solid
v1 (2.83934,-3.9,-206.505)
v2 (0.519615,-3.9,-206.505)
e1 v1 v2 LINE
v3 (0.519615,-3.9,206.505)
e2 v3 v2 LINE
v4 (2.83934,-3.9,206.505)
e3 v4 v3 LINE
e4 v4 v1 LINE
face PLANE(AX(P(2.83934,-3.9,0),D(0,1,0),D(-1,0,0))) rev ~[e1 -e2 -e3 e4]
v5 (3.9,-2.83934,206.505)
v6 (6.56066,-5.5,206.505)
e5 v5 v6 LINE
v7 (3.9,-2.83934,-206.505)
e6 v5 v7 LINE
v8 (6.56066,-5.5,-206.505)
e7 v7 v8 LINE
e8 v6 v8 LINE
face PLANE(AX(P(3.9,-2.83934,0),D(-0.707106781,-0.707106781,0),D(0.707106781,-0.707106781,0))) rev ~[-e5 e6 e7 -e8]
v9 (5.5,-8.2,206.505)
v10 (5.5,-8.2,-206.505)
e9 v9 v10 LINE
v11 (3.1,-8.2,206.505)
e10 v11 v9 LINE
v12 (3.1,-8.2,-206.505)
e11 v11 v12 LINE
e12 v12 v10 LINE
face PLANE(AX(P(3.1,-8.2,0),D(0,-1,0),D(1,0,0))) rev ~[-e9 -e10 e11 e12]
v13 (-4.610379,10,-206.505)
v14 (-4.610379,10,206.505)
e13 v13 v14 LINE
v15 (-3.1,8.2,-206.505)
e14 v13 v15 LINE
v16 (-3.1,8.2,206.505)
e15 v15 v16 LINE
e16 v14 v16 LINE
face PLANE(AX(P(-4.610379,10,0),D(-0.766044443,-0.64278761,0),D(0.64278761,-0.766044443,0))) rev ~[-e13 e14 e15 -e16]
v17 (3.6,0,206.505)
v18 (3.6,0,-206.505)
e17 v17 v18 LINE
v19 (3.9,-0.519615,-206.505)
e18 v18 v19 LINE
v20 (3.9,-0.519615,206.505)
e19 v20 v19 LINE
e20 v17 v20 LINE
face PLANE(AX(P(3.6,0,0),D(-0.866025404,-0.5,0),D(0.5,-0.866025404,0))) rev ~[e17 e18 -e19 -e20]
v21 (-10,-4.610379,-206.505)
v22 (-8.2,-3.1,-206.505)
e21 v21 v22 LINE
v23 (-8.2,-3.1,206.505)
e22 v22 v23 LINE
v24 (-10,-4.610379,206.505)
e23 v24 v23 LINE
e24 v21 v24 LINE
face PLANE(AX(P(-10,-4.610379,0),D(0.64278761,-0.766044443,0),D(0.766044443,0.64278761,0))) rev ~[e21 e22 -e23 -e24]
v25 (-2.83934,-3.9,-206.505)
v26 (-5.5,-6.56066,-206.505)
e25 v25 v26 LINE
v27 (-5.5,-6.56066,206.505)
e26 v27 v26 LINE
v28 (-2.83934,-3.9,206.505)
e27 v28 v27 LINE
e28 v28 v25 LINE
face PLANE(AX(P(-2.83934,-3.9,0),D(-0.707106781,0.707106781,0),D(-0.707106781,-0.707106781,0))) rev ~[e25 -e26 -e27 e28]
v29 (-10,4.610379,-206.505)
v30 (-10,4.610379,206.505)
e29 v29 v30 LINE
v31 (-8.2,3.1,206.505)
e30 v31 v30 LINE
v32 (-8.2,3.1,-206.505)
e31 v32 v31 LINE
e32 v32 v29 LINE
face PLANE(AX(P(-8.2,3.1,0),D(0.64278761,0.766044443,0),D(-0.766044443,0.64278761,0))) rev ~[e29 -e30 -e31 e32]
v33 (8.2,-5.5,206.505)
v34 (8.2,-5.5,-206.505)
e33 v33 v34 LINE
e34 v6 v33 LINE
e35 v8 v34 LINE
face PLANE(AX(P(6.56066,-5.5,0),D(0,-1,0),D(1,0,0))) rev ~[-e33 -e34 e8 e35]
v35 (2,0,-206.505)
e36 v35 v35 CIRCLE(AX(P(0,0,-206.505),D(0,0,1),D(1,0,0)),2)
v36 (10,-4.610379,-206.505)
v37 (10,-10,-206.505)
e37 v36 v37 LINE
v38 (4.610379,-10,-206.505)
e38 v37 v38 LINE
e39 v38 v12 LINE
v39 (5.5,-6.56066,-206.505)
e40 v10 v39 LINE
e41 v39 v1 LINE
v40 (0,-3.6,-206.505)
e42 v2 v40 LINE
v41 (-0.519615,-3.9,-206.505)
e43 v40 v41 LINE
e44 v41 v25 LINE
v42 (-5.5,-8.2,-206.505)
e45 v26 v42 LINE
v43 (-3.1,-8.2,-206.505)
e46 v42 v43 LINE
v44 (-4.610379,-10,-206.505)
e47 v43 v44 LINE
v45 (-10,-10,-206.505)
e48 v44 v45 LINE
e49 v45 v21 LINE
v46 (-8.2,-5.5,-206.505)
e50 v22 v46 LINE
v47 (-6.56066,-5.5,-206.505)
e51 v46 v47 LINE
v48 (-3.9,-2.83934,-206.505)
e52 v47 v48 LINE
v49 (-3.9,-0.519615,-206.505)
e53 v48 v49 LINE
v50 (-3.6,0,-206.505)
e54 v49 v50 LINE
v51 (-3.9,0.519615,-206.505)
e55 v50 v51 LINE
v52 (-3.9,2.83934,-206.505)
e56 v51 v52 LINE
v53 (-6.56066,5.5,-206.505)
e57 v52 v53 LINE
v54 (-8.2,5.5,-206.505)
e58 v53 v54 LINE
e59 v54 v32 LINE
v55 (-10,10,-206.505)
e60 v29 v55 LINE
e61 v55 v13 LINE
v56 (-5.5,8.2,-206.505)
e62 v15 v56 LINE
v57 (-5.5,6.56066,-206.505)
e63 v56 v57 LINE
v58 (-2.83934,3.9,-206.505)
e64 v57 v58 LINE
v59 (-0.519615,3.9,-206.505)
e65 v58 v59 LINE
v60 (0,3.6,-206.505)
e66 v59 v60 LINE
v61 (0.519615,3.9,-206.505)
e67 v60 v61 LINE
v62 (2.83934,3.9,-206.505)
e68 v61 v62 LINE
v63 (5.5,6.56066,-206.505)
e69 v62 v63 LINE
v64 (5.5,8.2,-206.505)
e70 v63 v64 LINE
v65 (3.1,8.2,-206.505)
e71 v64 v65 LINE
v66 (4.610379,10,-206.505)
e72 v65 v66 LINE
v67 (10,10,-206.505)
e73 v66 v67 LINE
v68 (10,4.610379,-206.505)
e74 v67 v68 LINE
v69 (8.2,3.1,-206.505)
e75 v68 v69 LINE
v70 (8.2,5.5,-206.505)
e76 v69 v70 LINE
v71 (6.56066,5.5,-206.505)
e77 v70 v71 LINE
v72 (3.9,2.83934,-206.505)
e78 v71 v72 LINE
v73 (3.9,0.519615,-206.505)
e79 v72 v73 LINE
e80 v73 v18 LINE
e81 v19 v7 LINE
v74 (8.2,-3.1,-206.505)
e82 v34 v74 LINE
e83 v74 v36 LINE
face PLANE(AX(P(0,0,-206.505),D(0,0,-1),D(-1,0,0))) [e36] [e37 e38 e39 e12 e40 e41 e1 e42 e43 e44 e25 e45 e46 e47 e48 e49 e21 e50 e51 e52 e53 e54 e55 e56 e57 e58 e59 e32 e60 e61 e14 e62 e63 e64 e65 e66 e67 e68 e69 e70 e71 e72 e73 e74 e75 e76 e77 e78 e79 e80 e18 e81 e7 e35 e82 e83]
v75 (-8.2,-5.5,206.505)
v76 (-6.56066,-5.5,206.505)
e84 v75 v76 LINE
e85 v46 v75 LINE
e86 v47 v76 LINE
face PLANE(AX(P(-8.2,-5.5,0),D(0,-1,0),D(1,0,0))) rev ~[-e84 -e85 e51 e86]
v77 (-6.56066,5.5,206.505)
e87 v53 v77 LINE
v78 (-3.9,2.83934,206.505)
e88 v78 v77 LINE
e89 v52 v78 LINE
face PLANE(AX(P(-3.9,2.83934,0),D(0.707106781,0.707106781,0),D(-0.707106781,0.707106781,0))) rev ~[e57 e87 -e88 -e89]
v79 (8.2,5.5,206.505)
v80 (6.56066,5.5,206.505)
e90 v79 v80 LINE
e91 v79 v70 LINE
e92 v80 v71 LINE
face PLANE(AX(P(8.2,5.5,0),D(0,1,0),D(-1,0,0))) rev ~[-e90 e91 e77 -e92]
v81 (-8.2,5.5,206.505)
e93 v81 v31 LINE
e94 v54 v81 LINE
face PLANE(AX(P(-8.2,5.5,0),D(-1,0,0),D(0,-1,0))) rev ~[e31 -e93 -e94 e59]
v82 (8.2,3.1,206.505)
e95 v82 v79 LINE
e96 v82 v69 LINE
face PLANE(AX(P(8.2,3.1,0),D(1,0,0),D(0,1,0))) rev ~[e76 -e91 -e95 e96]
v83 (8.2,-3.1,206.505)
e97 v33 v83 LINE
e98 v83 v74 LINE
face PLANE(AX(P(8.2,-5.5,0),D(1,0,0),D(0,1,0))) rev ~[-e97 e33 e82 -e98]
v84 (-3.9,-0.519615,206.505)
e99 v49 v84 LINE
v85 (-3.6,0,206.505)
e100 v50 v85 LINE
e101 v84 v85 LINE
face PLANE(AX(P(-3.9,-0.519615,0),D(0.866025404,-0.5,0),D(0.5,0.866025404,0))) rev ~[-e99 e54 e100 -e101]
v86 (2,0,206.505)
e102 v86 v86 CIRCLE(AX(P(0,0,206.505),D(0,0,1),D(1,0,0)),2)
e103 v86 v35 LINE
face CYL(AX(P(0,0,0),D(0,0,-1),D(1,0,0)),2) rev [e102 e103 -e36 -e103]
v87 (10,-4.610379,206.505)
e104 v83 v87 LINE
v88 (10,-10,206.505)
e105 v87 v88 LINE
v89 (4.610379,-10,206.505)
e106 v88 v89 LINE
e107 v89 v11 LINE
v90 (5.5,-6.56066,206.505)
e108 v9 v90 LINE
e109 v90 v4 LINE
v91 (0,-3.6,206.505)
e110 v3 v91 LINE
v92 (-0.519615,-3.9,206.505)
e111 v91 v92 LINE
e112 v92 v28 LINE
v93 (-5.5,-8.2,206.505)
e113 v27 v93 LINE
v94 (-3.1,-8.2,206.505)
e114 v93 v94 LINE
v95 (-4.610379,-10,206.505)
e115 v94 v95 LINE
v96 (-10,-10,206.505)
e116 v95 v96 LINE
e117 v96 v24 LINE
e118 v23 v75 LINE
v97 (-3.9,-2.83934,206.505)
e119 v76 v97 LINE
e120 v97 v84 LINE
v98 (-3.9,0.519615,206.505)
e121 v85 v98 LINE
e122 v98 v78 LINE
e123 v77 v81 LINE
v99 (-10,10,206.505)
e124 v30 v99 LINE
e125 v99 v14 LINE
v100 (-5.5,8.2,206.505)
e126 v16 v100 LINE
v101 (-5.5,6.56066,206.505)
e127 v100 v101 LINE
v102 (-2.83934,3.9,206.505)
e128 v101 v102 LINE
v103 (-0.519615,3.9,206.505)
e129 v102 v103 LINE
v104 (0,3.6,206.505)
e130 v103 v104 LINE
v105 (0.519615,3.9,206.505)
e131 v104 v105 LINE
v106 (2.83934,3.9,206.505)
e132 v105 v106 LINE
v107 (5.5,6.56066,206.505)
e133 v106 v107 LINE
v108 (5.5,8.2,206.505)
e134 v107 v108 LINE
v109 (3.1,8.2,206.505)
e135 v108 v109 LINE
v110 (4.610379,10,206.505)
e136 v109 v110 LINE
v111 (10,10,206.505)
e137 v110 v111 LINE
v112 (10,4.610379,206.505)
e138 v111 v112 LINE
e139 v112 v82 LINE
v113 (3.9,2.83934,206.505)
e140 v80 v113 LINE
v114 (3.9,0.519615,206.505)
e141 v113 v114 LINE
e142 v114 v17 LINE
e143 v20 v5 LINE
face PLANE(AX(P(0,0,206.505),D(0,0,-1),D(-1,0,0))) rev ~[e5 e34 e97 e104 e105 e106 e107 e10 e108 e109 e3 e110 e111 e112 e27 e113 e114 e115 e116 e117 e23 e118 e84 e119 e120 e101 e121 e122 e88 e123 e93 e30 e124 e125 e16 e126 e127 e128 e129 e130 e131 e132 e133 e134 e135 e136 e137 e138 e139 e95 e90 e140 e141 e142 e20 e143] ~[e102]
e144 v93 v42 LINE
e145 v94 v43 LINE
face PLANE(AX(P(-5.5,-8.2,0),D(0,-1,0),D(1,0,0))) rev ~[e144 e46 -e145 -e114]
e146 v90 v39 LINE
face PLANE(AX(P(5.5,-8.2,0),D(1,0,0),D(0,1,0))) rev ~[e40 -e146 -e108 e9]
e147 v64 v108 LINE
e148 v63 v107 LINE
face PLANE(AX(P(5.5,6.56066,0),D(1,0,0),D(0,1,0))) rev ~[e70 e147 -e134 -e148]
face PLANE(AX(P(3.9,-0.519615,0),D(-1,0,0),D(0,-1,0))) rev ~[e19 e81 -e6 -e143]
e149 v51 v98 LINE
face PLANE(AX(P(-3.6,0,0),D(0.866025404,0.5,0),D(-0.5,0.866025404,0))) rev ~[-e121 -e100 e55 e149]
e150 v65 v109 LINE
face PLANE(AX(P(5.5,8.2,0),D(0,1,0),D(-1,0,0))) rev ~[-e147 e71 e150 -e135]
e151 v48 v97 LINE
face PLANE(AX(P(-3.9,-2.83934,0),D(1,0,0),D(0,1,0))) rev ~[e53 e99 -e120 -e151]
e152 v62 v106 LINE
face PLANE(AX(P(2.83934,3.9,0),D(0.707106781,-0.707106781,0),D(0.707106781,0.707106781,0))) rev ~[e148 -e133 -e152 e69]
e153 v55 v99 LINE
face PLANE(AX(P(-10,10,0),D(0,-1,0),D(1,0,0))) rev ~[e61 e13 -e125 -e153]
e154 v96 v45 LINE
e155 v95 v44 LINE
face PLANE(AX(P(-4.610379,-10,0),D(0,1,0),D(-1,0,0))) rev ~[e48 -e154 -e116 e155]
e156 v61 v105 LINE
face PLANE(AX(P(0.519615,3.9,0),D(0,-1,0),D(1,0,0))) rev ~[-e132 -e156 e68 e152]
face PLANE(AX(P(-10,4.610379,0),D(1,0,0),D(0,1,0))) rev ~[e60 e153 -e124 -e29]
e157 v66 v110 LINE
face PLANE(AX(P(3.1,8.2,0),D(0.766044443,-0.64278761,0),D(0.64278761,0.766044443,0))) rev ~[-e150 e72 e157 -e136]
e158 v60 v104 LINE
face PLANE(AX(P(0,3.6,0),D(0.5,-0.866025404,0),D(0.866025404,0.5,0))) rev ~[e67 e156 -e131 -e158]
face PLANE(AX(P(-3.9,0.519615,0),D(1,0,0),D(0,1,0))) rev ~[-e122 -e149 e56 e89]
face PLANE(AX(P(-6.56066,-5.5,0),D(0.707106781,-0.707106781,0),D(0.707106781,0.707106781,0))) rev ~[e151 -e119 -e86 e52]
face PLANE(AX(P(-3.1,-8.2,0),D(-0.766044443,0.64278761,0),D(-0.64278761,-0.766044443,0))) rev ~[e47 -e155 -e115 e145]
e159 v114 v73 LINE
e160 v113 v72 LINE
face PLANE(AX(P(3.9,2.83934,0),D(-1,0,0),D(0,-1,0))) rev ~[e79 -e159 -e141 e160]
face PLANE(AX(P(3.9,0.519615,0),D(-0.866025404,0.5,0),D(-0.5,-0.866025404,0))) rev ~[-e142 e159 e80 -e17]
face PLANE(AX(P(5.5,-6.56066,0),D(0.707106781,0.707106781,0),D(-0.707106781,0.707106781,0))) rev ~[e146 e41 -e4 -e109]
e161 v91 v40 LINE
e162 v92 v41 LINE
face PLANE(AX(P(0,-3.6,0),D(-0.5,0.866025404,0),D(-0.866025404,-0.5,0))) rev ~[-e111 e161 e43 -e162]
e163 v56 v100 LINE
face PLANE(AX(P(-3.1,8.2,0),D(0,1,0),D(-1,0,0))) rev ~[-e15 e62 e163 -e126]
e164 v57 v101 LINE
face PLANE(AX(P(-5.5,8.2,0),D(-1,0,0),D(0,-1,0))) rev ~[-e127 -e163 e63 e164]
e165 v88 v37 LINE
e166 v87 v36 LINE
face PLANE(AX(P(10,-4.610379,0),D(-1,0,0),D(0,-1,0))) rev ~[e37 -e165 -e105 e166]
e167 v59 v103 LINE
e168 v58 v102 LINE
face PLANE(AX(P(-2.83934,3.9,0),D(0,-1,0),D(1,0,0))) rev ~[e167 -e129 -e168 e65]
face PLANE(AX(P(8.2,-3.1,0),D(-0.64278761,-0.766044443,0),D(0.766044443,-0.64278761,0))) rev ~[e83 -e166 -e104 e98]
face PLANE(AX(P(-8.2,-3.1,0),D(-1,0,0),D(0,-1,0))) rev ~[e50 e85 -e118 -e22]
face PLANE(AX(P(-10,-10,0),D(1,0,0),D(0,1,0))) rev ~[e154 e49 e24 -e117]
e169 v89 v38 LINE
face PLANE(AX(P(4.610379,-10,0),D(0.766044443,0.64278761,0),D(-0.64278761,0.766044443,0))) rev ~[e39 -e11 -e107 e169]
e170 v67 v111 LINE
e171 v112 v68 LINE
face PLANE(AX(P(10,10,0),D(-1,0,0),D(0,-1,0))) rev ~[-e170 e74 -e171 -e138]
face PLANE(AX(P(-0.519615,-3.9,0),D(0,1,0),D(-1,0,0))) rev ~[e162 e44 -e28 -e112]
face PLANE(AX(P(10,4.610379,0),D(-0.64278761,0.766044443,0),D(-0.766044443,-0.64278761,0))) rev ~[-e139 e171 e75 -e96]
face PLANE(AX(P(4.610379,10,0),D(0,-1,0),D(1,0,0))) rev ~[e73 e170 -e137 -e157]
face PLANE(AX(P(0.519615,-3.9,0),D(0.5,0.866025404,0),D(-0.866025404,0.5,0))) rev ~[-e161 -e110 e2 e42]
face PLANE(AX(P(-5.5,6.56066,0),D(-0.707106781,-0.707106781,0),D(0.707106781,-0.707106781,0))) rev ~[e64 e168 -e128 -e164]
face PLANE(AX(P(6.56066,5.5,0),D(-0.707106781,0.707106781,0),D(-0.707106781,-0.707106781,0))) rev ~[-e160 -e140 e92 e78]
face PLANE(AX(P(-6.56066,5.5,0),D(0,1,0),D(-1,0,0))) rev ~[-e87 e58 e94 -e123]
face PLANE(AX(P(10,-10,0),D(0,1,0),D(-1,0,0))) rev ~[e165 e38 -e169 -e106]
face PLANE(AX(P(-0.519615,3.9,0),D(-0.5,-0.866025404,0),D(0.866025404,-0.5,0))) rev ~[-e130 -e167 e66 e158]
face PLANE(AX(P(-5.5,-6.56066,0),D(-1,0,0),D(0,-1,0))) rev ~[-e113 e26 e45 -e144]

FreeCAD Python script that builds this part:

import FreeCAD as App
import Part
import Sketcher
Q = App.Units.Quantity


def add_polygon(sketch, points):
    """Adds a closed chain of lines whose ends are joined by coincident constraints."""
    first, n = sketch.GeometryCount, len(points)
    for a, b in zip(points, points[1:] + points[:1]):
        sketch.addGeometry(Part.LineSegment(App.Vector(*a, 0), App.Vector(*b, 0)), False)
    for i in range(n):
        sketch.addConstraint(Sketcher.Constraint("Coincident", first + i, 2, first + (i + 1) % n, 1))

doc = App.newDocument("Part")
params = doc.addObject("Spreadsheet::Sheet", "Params")
for row, (alias, value) in enumerate([
    ("sketch1_diameter", "4 mm"),
    ("sketch1_width", "2.4 mm"),
    ("sketch1_length", "0.6 mm"),
    ("pad1_length", "413.01 mm"),
], start=1):
    params.set(f"A{row}", alias)
    params.set(f"B{row}", "=" + value)
    params.setAlias(f"B{row}", alias)

body = doc.addObject("PartDesign::Body", "Body")

sketch1 = doc.addObject("Sketcher::SketchObject", "Sketch")
body.addObject(sketch1)
sketch1.AttachmentSupport = (doc.XY_Plane, [""])
sketch1.MapMode = "FlatFace"
add_polygon(sketch1, [(10, 4.6), (10, 10), (4.6, 10), (3.1, 8.2), (5.5, 8.2), (5.5, 6.6), (2.8, 3.9), (0.5, 3.9), (0, 3.6), (-0.5, 3.9), (-2.8, 3.9), (-5.5, 6.6), (-5.5, 8.2), (-3.1, 8.2), (-4.6, 10), (-10, 10), (-10, 4.6), (-8.2, 3.1), (-8.2, 5.5), (-6.6, 5.5), (-3.9, 2.8), (-3.9, 0.5), (-3.6, 0), (-3.9, -0.5), (-3.9, -2.8), (-6.6, -5.5), (-8.2, -5.5), (-8.2, -3.1), (-10, -4.6), (-10, -10), (-4.6, -10), (-3.1, -8.2), (-5.5, -8.2), (-5.5, -6.6), (-2.8, -3.9), (-0.5, -3.9), (0, -3.6), (0.5, -3.9), (2.8, -3.9), (5.5, -6.6), (5.5, -8.2), (3.1, -8.2), (4.6, -10), (10, -10), (10, -4.6), (8.2, -3.1), (8.2, -5.5), (6.6, -5.5), (3.9, -2.8), (3.9, -0.5), (3.6, 0), (3.9, 0.5), (3.9, 2.8), (6.6, 5.5), (8.2, 5.5), (8.2, 3.1)])
sketch1.addGeometry(Part.Circle(App.Vector(0, 0, 0), App.Vector(0, 0, 1), 2), False)
sketch1.addConstraint(Sketcher.Constraint("Vertical", 0))
sketch1.addConstraint(Sketcher.Constraint("Horizontal", 1))
sketch1.addConstraint(Sketcher.Constraint("Horizontal", 3))
sketch1.addConstraint(Sketcher.Constraint("Vertical", 4))
sketch1.addConstraint(Sketcher.Constraint("Horizontal", 6))
sketch1.addConstraint(Sketcher.Constraint("Horizontal", 9))
sketch1.addConstraint(Sketcher.Constraint("Vertical", 11))
sketch1.addConstraint(Sketcher.Constraint("Horizontal", 12))
sketch1.addConstraint(Sketcher.Constraint("Horizontal", 14))
sketch1.addConstraint(Sketcher.Constraint("Vertical", 15))
sketch1.addConstraint(Sketcher.Constraint("Vertical", 17))
sketch1.addConstraint(Sketcher.Constraint("Horizontal", 18))
sketch1.addConstraint(Sketcher.Constraint("Vertical", 20))
sketch1.addConstraint(Sketcher.Constraint("Vertical", 23))
sketch1.addConstraint(Sketcher.Constraint("Horizontal", 25))
sketch1.addConstraint(Sketcher.Constraint("Vertical", 26))
sketch1.addConstraint(Sketcher.Constraint("Vertical", 28))
sketch1.addConstraint(Sketcher.Constraint("Horizontal", 29))
sketch1.addConstraint(Sketcher.Constraint("Horizontal", 31))
sketch1.addConstraint(Sketcher.Constraint("Vertical", 32))
sketch1.addConstraint(Sketcher.Constraint("Horizontal", 34))
sketch1.addConstraint(Sketcher.Constraint("Horizontal", 37))
sketch1.addConstraint(Sketcher.Constraint("Vertical", 39))
sketch1.addConstraint(Sketcher.Constraint("Horizontal", 40))
sketch1.addConstraint(Sketcher.Constraint("Horizontal", 42))
sketch1.addConstraint(Sketcher.Constraint("Vertical", 43))
sketch1.addConstraint(Sketcher.Constraint("Vertical", 45))
sketch1.addConstraint(Sketcher.Constraint("Horizontal", 46))
sketch1.addConstraint(Sketcher.Constraint("Vertical", 48))
sketch1.addConstraint(Sketcher.Constraint("Vertical", 51))
sketch1.addConstraint(Sketcher.Constraint("Horizontal", 53))
sketch1.addConstraint(Sketcher.Constraint("Vertical", 54))
sketch1.addConstraint(Sketcher.Constraint("Coincident", 56, 3, -1, 1))
sketch1.addConstraint(Sketcher.Constraint("Symmetric", 0, 2, 28, 2, -1, 1))
sketch1.addConstraint(Sketcher.Constraint("Symmetric", 2, 2, 30, 2, -1, 1))
sketch1.addConstraint(Sketcher.Constraint("Symmetric", 4, 2, 32, 2, -1, 1))
sketch1.addConstraint(Sketcher.Constraint("Symmetric", 5, 2, 33, 2, -1, 1))
sketch1.addConstraint(Sketcher.Constraint("Symmetric", 7, 2, 35, 2, -1, 1))
sketch1.addConstraint(Sketcher.Constraint("Symmetric", 8, 2, 36, 2, -1, 1))
sketch1.addConstraint(Sketcher.Constraint("Symmetric", 10, 2, 38, 2, -1, 1))
sketch1.addConstraint(Sketcher.Constraint("Symmetric", 12, 2, 40, 2, -1, 1))
sketch1.addConstraint(Sketcher.Constraint("Symmetric", 13, 2, 41, 2, -1, 1))
sketch1.addConstraint(Sketcher.Constraint("Symmetric", 15, 2, 43, 2, -1, 1))
sketch1.addConstraint(Sketcher.Constraint("Symmetric", 16, 2, 44, 2, -1, 1))
sketch1.addConstraint(Sketcher.Constraint("Symmetric", 18, 2, 46, 2, -1, 1))
sketch1.addConstraint(Sketcher.Constraint("Symmetric", 19, 2, 47, 2, -1, 1))
sketch1.addConstraint(Sketcher.Constraint("Symmetric", 21, 2, 49, 2, -1, 1))
sketch1.addConstraint(Sketcher.Constraint("Symmetric", 22, 2, 50, 2, -1, 1))
sketch1.addConstraint(Sketcher.Constraint("Symmetric", 24, 2, 52, 2, -1, 1))
sketch1.addConstraint(Sketcher.Constraint("Symmetric", 26, 2, 54, 2, -1, 1))
sketch1.addConstraint(Sketcher.Constraint("Symmetric", 6, 2, 8, 2, -2))
sketch1.addConstraint(Sketcher.Constraint("Symmetric", 4, 2, 10, 2, -2))
sketch1.addConstraint(Sketcher.Constraint("Symmetric", 2, 2, 12, 2, -2))
sketch1.addConstraint(Sketcher.Constraint("Symmetric", 1, 2, 13, 2, -2))
sketch1.addConstraint(Sketcher.Constraint("Symmetric", 27, 2, 43, 2, -2))
sketch1.addConstraint(Sketcher.Constraint("Symmetric", 26, 2, 44, 2, -2))
sketch1.addConstraint(Sketcher.Constraint("Symmetric", 24, 2, 46, 2, -2))
sketch1.addConstraint(Sketcher.Constraint("Symmetric", 23, 2, 47, 2, -2))
sketch1.addConstraint(Sketcher.Constraint("PointOnObject", 7, 2, -2))
sketch1.addConstraint(Sketcher.Constraint("PointOnObject", 21, 2, -1))
sketch1.addConstraint(Sketcher.Constraint("Perpendicular", 5, 10))
sketch1.addConstraint(Sketcher.Constraint("Perpendicular", 2, 16))
sketch1.addConstraint(Sketcher.Constraint("Parallel", 10, 19))
sketch1.addConstraint(Sketcher.Constraint("Perpendicular", 7, 21))
sketch1.addConstraint(Sketcher.Constraint("Perpendicular", 8, 22))
sketch1.addConstraint(Sketcher.Constraint("Perpendicular", 19, 24))
sketch1.addConstraint(Sketcher.Constraint("Perpendicular", 16, 30))
sketch1.addConstraint(Sketcher.Constraint("Perpendicular", 21, 35))
sketch1.addConstraint(Sketcher.Constraint("Perpendicular", 33, 38))
sketch1.addConstraint(Sketcher.Constraint("Perpendicular", 35, 49))
sketch1.addConstraint(Sketcher.Constraint("Perpendicular", 47, 52))
sketch1.addConstraint(Sketcher.Constraint("Perpendicular", 41, 55))
sketch1.addConstraint(Sketcher.Constraint("Equal", 42, 0))
sketch1.addConstraint(Sketcher.Constraint("Equal", 53, 4))
sketch1.addConstraint(Sketcher.Constraint("Equal", 40, 17))
sketch1.addConstraint(Sketcher.Constraint("Equal", 37, 20))
sketch1.addConstraint(Sketcher.Constraint("Equal", 13, 16))
sketch1.addConstraint(Sketcher.Constraint("Equal", 10, 19))
sketch1.addConstraint(Sketcher.Constraint("Equal", 8, 21))
sketch1.addConstraint(Sketcher.Constraint("Diameter", 56, Q("4 mm")))
sketch1.addConstraint(Sketcher.Constraint("Angle", 2, Q("-130 deg")))
sketch1.addConstraint(Sketcher.Constraint("Angle", 7, Q("-150 deg")))
sketch1.addConstraint(Sketcher.Constraint("DistanceX", 3, 1, 3, 2, Q("2.4 mm")))
sketch1.addConstraint(Sketcher.Constraint("DistanceX", -1, 1, 0, 2, Q("10 mm")))
sketch1.addConstraint(Sketcher.Constraint("Distance", 7, Q("0.6 mm")))
sketch1.addConstraint(Sketcher.Constraint("DistanceX", -1, 1, 2, 2, Q("3.1 mm")))
sketch1.addConstraint(Sketcher.Constraint("DistanceY", -1, 1, 2, 2, Q("8.2 mm")))
sketch1.addConstraint(Sketcher.Constraint("DistanceY", -1, 1, 5, 2, Q("3.9 mm")))
sketch1.addConstraint(Sketcher.Constraint("DistanceX", 18, 1, 18, 2, Q("1.63934 mm")))
sketch1.setExpression("Constraints[135]", "Params.sketch1_diameter")
sketch1.setExpression("Constraints[138]", "Params.sketch1_width")
sketch1.setExpression("Constraints[140]", "Params.sketch1_length")
pad1 = doc.addObject("PartDesign::Pad", "Pad")
body.addObject(pad1)
pad1.Profile = sketch1
pad1.setExpression("Length", "Params.pad1_length")
pad1.Midplane = True

doc.recompute()
